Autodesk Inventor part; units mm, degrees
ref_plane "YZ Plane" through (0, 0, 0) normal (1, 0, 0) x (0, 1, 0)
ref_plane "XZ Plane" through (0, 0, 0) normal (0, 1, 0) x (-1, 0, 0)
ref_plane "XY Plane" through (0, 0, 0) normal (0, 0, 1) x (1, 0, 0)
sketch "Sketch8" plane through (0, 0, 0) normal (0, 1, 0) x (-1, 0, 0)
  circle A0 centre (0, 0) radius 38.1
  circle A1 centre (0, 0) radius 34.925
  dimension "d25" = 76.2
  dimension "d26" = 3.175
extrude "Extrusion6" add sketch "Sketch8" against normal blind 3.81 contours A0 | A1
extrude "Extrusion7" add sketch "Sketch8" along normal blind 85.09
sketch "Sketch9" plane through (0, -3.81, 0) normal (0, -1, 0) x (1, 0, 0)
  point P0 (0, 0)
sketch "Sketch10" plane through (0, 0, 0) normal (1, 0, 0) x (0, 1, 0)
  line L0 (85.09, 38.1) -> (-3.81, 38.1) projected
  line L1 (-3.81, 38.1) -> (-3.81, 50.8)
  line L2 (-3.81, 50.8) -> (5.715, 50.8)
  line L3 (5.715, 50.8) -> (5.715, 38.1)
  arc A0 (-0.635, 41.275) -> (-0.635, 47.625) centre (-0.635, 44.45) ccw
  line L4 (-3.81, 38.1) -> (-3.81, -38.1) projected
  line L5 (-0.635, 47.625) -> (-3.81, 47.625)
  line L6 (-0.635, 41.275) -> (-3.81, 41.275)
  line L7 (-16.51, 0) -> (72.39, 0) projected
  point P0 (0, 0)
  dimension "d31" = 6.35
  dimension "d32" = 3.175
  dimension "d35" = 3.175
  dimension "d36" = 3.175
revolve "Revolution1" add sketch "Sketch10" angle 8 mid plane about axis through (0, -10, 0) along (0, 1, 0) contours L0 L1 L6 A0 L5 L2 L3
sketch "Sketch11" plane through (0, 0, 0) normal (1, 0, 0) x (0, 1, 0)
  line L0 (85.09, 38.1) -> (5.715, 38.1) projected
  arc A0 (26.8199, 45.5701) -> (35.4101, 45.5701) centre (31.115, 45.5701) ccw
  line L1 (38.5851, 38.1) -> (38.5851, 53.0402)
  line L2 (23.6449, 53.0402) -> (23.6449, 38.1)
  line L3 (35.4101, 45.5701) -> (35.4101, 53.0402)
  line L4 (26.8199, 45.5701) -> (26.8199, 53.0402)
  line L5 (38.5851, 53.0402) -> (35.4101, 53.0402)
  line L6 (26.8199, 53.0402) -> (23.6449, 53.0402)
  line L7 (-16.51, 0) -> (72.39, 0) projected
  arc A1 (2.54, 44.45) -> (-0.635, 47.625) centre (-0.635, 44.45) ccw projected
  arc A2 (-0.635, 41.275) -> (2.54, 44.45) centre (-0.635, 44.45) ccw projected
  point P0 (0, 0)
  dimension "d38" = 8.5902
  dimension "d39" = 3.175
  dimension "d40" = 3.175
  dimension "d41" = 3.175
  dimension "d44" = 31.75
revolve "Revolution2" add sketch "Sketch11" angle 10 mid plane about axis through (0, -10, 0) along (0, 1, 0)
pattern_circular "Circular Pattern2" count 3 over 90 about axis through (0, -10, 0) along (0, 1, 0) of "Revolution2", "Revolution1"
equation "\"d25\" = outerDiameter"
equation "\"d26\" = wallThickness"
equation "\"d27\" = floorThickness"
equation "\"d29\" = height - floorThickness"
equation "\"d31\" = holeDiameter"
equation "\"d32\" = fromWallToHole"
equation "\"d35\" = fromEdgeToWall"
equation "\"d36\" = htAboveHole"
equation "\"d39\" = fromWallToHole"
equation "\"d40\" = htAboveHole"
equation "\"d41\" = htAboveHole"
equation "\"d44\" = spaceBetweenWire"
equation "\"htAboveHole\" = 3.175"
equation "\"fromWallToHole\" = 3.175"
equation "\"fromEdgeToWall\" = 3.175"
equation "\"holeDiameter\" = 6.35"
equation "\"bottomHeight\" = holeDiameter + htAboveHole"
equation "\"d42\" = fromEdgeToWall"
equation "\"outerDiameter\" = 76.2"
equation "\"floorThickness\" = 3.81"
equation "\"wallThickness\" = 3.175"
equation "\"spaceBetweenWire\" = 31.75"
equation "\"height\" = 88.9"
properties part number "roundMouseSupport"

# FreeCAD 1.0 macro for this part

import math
import FreeCAD as App
import Part
import Sketcher
from FreeCAD import Vector
Q = App.Units.Quantity

doc = App.newDocument("Part")
body = doc.addObject("PartDesign::Body", "Body")

# Sketch on XZ plane
sketch1 = body.newObject("Sketcher::SketchObject", "Sketch")
sketch1.AttachmentSupport = (doc.getObject("XZ_Plane"), [""])
sketch1.MapMode = "FlatFace"
sketch1.addGeometry(Part.Circle(Vector(0, 0, 0), Vector(0, 0, 1), 38.1), False)
sketch1.addConstraint(Sketcher.Constraint("Coincident", 0, 3, -1, 1))
sketch1.addConstraint(Sketcher.Constraint("Diameter", 0, Q("3 in")))
pad1 = body.newObject("PartDesign::Pad", "Pad")
pad1.Profile = sketch1
pad1.Length = Q("0.15 in")

# Sketch on XZ plane
sketch2 = body.newObject("Sketcher::SketchObject", "Sketch001")
sketch2.AttachmentSupport = (doc.getObject("XZ_Plane"), [""])
sketch2.MapMode = "FlatFace"
sketch2.addGeometry(Part.Circle(Vector(0, 0, 0), Vector(0, 0, 1), 38.1), False)
sketch2.addGeometry(Part.Circle(Vector(0, 0, 0), Vector(0, 0, 1), 34.925), False)
sketch2.addConstraint(Sketcher.Constraint("Coincident", 0, 3, -1, 1))
sketch2.addConstraint(Sketcher.Constraint("Coincident", 1, 3, -1, 1))
sketch2.addConstraint(Sketcher.Constraint("Diameter", 0, Q("3 in")))
sketch2.addConstraint(Sketcher.Constraint("Diameter", 1, Q("2.75 in")))
pad2 = body.newObject("PartDesign::Pad", "Pad001")
pad2.Profile = sketch2
pad2.Length = Q("3.35 in")
pad2.Reversed = True

# Sketch on YZ plane
sketch3 = body.newObject("Sketcher::SketchObject", "Sketch002")
sketch3.AttachmentSupport = (doc.getObject("YZ_Plane"), [""])
sketch3.MapMode = "FlatFace"
sketch3.addGeometry(Part.LineSegment(Vector(-3.81, 38.1, 0), Vector(5.715, 38.1, 0)), False)
sketch3.addGeometry(Part.LineSegment(Vector(5.715, 38.1, 0), Vector(5.715, 50.8, 0)), False)
sketch3.addGeometry(Part.LineSegment(Vector(5.715, 50.8, 0), Vector(-3.81, 50.8, 0)), False)
sketch3.addGeometry(Part.LineSegment(Vector(-3.81, 50.8, 0), Vector(-3.81, 47.625, 0)), False)
sketch3.addGeometry(Part.LineSegment(Vector(-3.81, 47.625, 0), Vector(-0.635, 47.625, 0)), False)
sketch3.addGeometry(Part.ArcOfCircle(Part.Circle(Vector(-0.635, 44.45, 0), Vector(0, 0, 1), 3.175), math.radians(-90), math.radians(90)), False)
sketch3.addGeometry(Part.LineSegment(Vector(-0.635, 41.275, 0), Vector(-3.81, 41.275, 0)), False)
sketch3.addGeometry(Part.LineSegment(Vector(-3.81, 41.275, 0), Vector(-3.81, 38.1, 0)), False)
sketch3.addConstraint(Sketcher.Constraint("Coincident", 0, 2, 1, 1))
sketch3.addConstraint(Sketcher.Constraint("Coincident", 1, 2, 2, 1))
sketch3.addConstraint(Sketcher.Constraint("Coincident", 2, 2, 3, 1))
sketch3.addConstraint(Sketcher.Constraint("Coincident", 3, 2, 4, 1))
sketch3.addConstraint(Sketcher.Constraint("Tangent", 4, 2, 5, 2))
sketch3.addConstraint(Sketcher.Constraint("Tangent", 5, 1, 6, 1))
sketch3.addConstraint(Sketcher.Constraint("Coincident", 6, 2, 7, 1))
sketch3.addConstraint(Sketcher.Constraint("Coincident", 7, 2, 0, 1))
sketch3.addConstraint(Sketcher.Constraint("Horizontal", 0))
sketch3.addConstraint(Sketcher.Constraint("Vertical", 1))
sketch3.addConstraint(Sketcher.Constraint("Horizontal", 2))
sketch3.addConstraint(Sketcher.Constraint("Vertical", 3))
sketch3.addConstraint(Sketcher.Constraint("Horizontal", 4))
sketch3.addConstraint(Sketcher.Constraint("Horizontal", 6))
sketch3.addConstraint(Sketcher.Constraint("Vertical", 7))
sketch3.addConstraint(Sketcher.Constraint("Vertical", 3, 2, 6, 2))
sketch3.addConstraint(Sketcher.Constraint("Equal", 6, 3))
sketch3.addConstraint(Sketcher.Constraint("Equal", 3, 7))
sketch3.addConstraint(Sketcher.Constraint("Radius", 5, Q("0.125 in")))
sketch3.addConstraint(Sketcher.Constraint("DistanceX", 4, 1, 4, 2, Q("0.125 in")))
sketch3.addConstraint(Sketcher.Constraint("DistanceX", 5, 3, 0, 2, Q("0.25 in")))
sketch3.addConstraint(Sketcher.Constraint("DistanceY", -1, 1, 1, 2, Q("2 in")))
sketch3.addConstraint(Sketcher.Constraint("DistanceX", 2, 2, -1, 1, Q("0.15 in")))
revolution = body.newObject("PartDesign::Revolution", "Revolution")
revolution.Profile = sketch3
revolution.ReferenceAxis = (sketch3, ["H_Axis"])
revolution.Angle = 8
revolution.Midplane = True

# Sketch on YZ plane
sketch4 = body.newObject("Sketcher::SketchObject", "Sketch003")
sketch4.AttachmentSupport = (doc.getObject("YZ_Plane"), [""])
sketch4.MapMode = "FlatFace"
sketch4.addGeometry(Part.LineSegment(Vector(23.6449, 38.1, 0), Vector(38.5851, 38.1, 0)), False)
sketch4.addGeometry(Part.LineSegment(Vector(38.5851, 38.1, 0), Vector(38.5851, 53.0402, 0)), False)
sketch4.addGeometry(Part.LineSegment(Vector(38.5851, 53.0402, 0), Vector(35.4101, 53.0402, 0)), False)
sketch4.addGeometry(Part.LineSegment(Vector(35.4101, 53.0402, 0), Vector(35.4101, 45.5701, 0)), False)
sketch4.addGeometry(Part.ArcOfCircle(Part.Circle(Vector(31.115, 45.5701, 0), Vector(0, 0, 1), 4.2951), math.radians(180), math.radians(360)), False)
sketch4.addGeometry(Part.LineSegment(Vector(26.8199, 45.5701, 0), Vector(26.8199, 53.0402, 0)), False)
sketch4.addGeometry(Part.LineSegment(Vector(26.8199, 53.0402, 0), Vector(23.6449, 53.0402, 0)), False)
sketch4.addGeometry(Part.LineSegment(Vector(23.6449, 53.0402, 0), Vector(23.6449, 38.1, 0)), False)
sketch4.addConstraint(Sketcher.Constraint("Coincident", 0, 2, 1, 1))
sketch4.addConstraint(Sketcher.Constraint("Coincident", 1, 2, 2, 1))
sketch4.addConstraint(Sketcher.Constraint("Coincident", 2, 2, 3, 1))
sketch4.addConstraint(Sketcher.Constraint("Tangent", 3, 2, 4, 2))
sketch4.addConstraint(Sketcher.Constraint("Tangent", 4, 1, 5, 1))
sketch4.addConstraint(Sketcher.Constraint("Coincident", 5, 2, 6, 1))
sketch4.addConstraint(Sketcher.Constraint("Coincident", 6, 2, 7, 1))
sketch4.addConstraint(Sketcher.Constraint("Coincident", 7, 2, 0, 1))
sketch4.addConstraint(Sketcher.Constraint("Horizontal", 0))
sketch4.addConstraint(Sketcher.Constraint("Vertical", 1))
sketch4.addConstraint(Sketcher.Constraint("Horizontal", 2))
sketch4.addConstraint(Sketcher.Constraint("Vertical", 3))
sketch4.addConstraint(Sketcher.Constraint("Vertical", 5))
sketch4.addConstraint(Sketcher.Constraint("Horizontal", 6))
sketch4.addConstraint(Sketcher.Constraint("Vertical", 7))
sketch4.addConstraint(Sketcher.Constraint("Horizontal", 2, 2, 5, 2))
sketch4.addConstraint(Sketcher.Constraint("Equal", 2, 6))
sketch4.addConstraint(Sketcher.Constraint("Equal", 0, 1))
sketch4.addConstraint(Sketcher.Constraint("Radius", 4, Q("0.1691 in")))
sketch4.addConstraint(Sketcher.Constraint("DistanceX", 2, 2, 2, 1, Q("0.125 in")))
sketch4.addConstraint(Sketcher.Constraint("DistanceY", -1, 1, 0, 2, Q("1.5 in")))
sketch4.addConstraint(Sketcher.Constraint("DistanceY", 3, 2, 3, 1, Q("0.2941 in")))
sketch4.addConstraint(Sketcher.Constraint("DistanceX", -1, 1, 4, 3, Q("1.225 in")))
revolution2 = body.newObject("PartDesign::Revolution", "Revolution001")
revolution2.Profile = sketch4
revolution2.ReferenceAxis = (sketch4, ["H_Axis"])
revolution2.Angle = 10
revolution2.Midplane = True
doc.recompute()

polarpattern = body.newObject("PartDesign::PolarPattern", "PolarPattern")
polarpattern.Originals = [revolution2, revolution]
polarpattern.Axis = (doc.getObject("Y_Axis"), [""])
polarpattern.Angle = 90
polarpattern.Occurrences = 3
body.Tip = polarpattern

doc.recompute()
